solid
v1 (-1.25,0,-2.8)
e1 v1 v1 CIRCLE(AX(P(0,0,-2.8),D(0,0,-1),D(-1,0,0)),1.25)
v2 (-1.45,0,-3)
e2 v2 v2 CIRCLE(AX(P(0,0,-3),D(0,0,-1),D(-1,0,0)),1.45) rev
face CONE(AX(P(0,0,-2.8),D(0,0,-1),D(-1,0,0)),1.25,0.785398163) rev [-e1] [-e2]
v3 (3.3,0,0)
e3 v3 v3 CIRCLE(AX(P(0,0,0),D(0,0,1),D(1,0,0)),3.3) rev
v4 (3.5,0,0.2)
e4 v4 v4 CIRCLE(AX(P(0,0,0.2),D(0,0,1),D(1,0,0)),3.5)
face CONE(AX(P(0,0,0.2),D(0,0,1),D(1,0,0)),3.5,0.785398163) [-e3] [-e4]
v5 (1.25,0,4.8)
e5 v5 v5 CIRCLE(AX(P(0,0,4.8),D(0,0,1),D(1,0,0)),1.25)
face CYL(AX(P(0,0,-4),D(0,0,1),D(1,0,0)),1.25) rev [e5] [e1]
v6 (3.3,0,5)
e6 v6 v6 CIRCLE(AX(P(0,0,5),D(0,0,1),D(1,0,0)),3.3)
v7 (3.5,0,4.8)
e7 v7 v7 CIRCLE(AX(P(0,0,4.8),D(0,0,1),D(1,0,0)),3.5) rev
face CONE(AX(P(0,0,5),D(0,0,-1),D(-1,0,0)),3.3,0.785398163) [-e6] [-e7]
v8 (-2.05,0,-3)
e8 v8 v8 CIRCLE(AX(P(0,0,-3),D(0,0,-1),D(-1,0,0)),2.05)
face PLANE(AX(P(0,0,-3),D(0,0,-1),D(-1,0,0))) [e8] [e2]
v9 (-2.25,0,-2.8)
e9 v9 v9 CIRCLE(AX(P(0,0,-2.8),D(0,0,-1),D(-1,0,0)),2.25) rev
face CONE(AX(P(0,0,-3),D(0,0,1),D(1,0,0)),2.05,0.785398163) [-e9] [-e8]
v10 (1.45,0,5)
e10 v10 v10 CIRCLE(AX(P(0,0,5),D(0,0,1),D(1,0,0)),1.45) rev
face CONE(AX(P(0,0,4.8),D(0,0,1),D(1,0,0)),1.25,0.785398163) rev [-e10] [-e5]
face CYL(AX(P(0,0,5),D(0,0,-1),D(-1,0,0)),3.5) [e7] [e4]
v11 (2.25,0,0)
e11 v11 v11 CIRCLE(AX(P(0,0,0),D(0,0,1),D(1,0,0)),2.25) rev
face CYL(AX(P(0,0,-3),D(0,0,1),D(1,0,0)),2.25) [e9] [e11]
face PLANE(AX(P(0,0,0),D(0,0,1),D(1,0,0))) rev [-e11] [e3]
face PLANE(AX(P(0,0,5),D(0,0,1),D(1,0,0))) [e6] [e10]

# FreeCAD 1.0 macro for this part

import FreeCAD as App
import Part
import Sketcher
Q = App.Units.Quantity


def edges_at(feature, points):
    """Names of the edges that pass closest to the given points."""
    edges = feature.Shape.Edges
    near = lambda p: min(range(len(edges)), key=lambda i: edges[i].distToShape(Part.Vertex(*p))[0])
    return sorted({f"Edge{near(p) + 1}" for p in points})

doc = App.newDocument("Part")
body = doc.addObject("PartDesign::Body", "Body")

sketch1 = body.newObject("Sketcher::SketchObject", "Sketch")
sketch1.AttachmentSupport = (doc.getObject("XY_Plane"), [""])
sketch1.MapMode = "FlatFace"
sketch1.addGeometry(Part.Circle(App.Vector(0, 0, 0), App.Vector(0, 0, 1), 3.5), False)
sketch1.addConstraint(Sketcher.Constraint("Coincident", 0, 3, -1, 1))
sketch1.addConstraint(Sketcher.Constraint("Diameter", 0, Q("7 mm")))
pad1 = body.newObject("PartDesign::Pad", "Pad")
pad1.Profile = sketch1
pad1.Length = 5

sketch2 = body.newObject("Sketcher::SketchObject", "Sketch001")
sketch2.AttachmentSupport = (doc.getObject("XY_Plane"), [""])
sketch2.MapMode = "FlatFace"
sketch2.addGeometry(Part.Circle(App.Vector(0, 0, 0), App.Vector(0, 0, 1), 2.2), False)
sketch2.addConstraint(Sketcher.Constraint("Coincident", 0, 3, -1, 1))
sketch2.addConstraint(Sketcher.Constraint("Diameter", 0, Q("4.5 mm")))
pad2 = body.newObject("PartDesign::Pad", "Pad001")
pad2.Profile = sketch2
pad2.Length = 3
pad2.Reversed = True
doc.recompute()

chamfer = body.newObject("PartDesign::Chamfer", "Chamfer")
chamfer.Base = (pad2, edges_at(pad2, [(-3.5, 0, 0), (-3.5, 0, 5), (-2.25, 0, -3)]))
chamfer.Size = 0.2

sketch3 = body.newObject("Sketcher::SketchObject", "Sketch002")
sketch3.AttachmentSupport = (doc.getObject("XY_Plane"), [""])
sketch3.MapMode = "FlatFace"
sketch3.AttachmentOffset = App.Placement(App.Vector(0, 0, 5), App.Rotation())
sketch3.addGeometry(Part.Circle(App.Vector(0, 0, 0), App.Vector(0, 0, 1), 1.2), False)
sketch3.addConstraint(Sketcher.Constraint("Coincident", 0, 3, -1, 1))
sketch3.addConstraint(Sketcher.Constraint("Diameter", 0, Q("2.5 mm")))
pocket1 = body.newObject("PartDesign::Pocket", "Pocket")
pocket1.Profile = sketch3
pocket1.Length = 9
doc.recompute()

chamfer2 = body.newObject("PartDesign::Chamfer", "Chamfer001")
chamfer2.Base = (pocket1, edges_at(pocket1, [(-1.25, 0, -3), (-1.25, 0, 5)]))
chamfer2.Size = 0.2

doc.recompute()
